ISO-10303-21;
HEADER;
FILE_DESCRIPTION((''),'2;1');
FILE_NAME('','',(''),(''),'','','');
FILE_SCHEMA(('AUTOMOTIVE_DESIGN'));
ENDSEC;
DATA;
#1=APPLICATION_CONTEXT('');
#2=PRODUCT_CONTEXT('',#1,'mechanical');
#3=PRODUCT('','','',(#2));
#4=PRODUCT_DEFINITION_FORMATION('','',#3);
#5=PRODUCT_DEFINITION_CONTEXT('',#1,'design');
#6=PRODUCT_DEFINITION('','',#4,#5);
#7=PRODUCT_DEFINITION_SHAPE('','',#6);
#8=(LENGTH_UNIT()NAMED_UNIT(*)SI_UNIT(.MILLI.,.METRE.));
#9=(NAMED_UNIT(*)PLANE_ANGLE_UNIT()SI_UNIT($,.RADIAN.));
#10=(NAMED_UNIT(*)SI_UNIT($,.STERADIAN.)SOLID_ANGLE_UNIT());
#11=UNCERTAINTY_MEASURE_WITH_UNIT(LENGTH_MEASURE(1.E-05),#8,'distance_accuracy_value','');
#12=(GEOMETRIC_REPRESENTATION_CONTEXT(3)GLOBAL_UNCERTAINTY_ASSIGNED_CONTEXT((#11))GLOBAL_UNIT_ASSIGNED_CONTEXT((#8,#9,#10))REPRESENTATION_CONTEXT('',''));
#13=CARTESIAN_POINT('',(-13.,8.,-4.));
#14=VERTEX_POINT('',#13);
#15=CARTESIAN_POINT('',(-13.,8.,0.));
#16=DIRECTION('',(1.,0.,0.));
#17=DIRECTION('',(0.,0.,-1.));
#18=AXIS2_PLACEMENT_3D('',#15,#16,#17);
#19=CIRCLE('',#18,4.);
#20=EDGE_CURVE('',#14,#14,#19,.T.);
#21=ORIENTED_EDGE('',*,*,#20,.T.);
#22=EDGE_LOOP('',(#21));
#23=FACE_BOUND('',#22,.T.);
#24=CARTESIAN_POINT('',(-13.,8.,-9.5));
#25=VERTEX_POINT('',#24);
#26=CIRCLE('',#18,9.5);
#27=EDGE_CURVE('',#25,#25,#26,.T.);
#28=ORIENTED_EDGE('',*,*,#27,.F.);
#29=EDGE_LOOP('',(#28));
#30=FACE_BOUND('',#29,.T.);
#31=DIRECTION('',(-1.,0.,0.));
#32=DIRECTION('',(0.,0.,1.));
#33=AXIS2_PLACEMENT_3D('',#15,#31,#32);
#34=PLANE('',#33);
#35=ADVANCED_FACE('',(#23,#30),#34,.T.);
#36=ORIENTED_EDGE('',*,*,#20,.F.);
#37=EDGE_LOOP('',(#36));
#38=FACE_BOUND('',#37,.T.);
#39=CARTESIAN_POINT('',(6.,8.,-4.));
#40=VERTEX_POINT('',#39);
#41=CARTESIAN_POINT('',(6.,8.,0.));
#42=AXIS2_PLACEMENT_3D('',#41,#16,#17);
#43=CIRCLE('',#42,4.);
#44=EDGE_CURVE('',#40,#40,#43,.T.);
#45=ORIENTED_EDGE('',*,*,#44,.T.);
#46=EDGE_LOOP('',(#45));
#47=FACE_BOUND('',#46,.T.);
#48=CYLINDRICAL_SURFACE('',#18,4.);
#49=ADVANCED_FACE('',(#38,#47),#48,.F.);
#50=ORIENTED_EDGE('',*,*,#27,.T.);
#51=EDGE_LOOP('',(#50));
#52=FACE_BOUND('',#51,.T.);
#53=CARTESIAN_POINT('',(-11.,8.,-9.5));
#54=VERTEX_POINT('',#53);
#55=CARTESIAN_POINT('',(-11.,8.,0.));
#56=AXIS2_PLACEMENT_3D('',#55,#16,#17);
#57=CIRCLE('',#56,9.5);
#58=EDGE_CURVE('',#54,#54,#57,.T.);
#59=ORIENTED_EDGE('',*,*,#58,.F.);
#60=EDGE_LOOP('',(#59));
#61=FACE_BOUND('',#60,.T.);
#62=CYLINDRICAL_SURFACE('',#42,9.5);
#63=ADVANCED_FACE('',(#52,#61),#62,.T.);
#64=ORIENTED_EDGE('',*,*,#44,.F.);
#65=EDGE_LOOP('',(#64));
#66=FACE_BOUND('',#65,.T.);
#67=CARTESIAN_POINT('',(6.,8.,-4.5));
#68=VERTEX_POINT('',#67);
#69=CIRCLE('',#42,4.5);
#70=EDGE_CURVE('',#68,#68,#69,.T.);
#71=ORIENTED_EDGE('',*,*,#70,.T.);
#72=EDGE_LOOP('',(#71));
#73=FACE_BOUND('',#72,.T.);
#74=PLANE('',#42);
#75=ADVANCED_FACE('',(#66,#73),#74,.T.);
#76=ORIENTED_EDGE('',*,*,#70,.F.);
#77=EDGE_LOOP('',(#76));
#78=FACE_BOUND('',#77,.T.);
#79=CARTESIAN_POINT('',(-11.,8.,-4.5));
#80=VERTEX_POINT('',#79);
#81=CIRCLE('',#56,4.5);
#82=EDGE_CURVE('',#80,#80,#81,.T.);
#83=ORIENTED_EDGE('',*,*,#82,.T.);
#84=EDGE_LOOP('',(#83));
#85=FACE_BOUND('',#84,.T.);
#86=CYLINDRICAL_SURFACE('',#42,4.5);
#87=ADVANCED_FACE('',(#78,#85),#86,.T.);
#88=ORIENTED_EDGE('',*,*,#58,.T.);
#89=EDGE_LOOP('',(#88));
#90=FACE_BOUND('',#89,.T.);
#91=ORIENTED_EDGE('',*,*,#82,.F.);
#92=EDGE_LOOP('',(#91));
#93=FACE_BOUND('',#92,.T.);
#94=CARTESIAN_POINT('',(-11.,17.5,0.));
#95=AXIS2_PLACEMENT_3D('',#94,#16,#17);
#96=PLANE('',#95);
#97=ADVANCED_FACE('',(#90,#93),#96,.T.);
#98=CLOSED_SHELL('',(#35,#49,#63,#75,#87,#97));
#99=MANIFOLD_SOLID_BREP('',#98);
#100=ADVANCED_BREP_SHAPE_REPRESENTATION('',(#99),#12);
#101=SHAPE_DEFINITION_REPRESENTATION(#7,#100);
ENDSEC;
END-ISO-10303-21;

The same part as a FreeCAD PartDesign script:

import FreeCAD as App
import Part
import Sketcher
from FreeCAD import Vector
Q = App.Units.Quantity

doc = App.newDocument("Part")
body = doc.addObject("PartDesign::Body", "Body")

# Sketch on XY plane
sketch1 = doc.addObject("Sketcher::SketchObject", "Sketch")
body.addObject(sketch1)
sketch1.AttachmentSupport = (doc.XY_Plane, [""])
sketch1.MapMode = "FlatFace"
sketch1.addGeometry([
    Part.LineSegment(Vector(-13, 8, 0), Vector(6, 8, 0)),  # 0
    Part.LineSegment(Vector(6, 8, 0), Vector(6, 12.5, 0)),  # 1
    Part.LineSegment(Vector(6, 12.5, 0), Vector(-11, 12.5, 0)),  # 2
    Part.LineSegment(Vector(-11, 12.5, 0), Vector(-11, 17.5, 0)),  # 3
    Part.LineSegment(Vector(-11, 17.5, 0), Vector(-13, 17.5, 0)),  # 4
    Part.LineSegment(Vector(-13, 17.5, 0), Vector(-13, 8, 0)),  # 5
], False)
sketch1.addGeometry(Part.LineSegment(Vector(6, 8, 0), Vector(-13, 8, 0)), True)  # axis
sketch1.addConstraint([
    Sketcher.Constraint("Coincident", 0, 2, 1, 1),
    Sketcher.Constraint("Coincident", 1, 2, 2, 1),
    Sketcher.Constraint("Coincident", 2, 2, 3, 1),
    Sketcher.Constraint("Coincident", 3, 2, 4, 1),
    Sketcher.Constraint("Coincident", 4, 2, 5, 1),
    Sketcher.Constraint("Coincident", 5, 2, 0, 1),
    Sketcher.Constraint("Horizontal", 0),
    Sketcher.Constraint("Vertical", 1),
    Sketcher.Constraint("Horizontal", 2),
    Sketcher.Constraint("Vertical", 3),
    Sketcher.Constraint("Horizontal", 4),
    Sketcher.Constraint("Vertical", 5),
    Sketcher.Constraint("Horizontal", 6),
    Sketcher.Constraint("Coincident", 6, 1, 0, 2),
    Sketcher.Constraint("Vertical", 4, 2, 6, 2),
    Sketcher.Constraint("DistanceX", 0, 1, 0, 2, Q("19 mm")),
    Sketcher.Constraint("DistanceX", 2, 2, 2, 1, Q("17 mm")),
    Sketcher.Constraint("DistanceY", 3, 1, 3, 2, Q("5 mm")),
    Sketcher.Constraint("DistanceY", 1, 1, 1, 2, Q("4.5 mm")),
    Sketcher.Constraint("DistanceX", -1, 1, 0, 2, Q("6 mm")),
    Sketcher.Constraint("DistanceY", -1, 1, 0, 2, Q("8 mm")),
])
revolution = doc.addObject("PartDesign::Revolution", "Revolution")
body.addObject(revolution)
revolution.Profile = sketch1
revolution.ReferenceAxis = (sketch1, ["Axis0"])
revolution.Angle = 360

# Sketch on YZ plane
sketch2 = doc.addObject("Sketcher::SketchObject", "Sketch001")
body.addObject(sketch2)
sketch2.AttachmentSupport = (doc.YZ_Plane, [""])
sketch2.MapMode = "FlatFace"
sketch2.AttachmentOffset = App.Placement(Vector(0, 0, 6), App.Rotation())
sketch2.addGeometry(Part.Circle(Vector(8, 0, 0), Vector(0, 0, 1), 4), False)
sketch2.addConstraint([
    Sketcher.Constraint("PointOnObject", 0, 3, -1),
    Sketcher.Constraint("Diameter", 0, Q("8 mm")),
    Sketcher.Constraint("DistanceX", -1, 1, 0, 3, Q("8 mm")),
])
pocket1 = doc.addObject("PartDesign::Pocket", "Pocket")
body.addObject(pocket1)
pocket1.Profile = sketch2
pocket1.Type = "ThroughAll"

doc.recompute()
